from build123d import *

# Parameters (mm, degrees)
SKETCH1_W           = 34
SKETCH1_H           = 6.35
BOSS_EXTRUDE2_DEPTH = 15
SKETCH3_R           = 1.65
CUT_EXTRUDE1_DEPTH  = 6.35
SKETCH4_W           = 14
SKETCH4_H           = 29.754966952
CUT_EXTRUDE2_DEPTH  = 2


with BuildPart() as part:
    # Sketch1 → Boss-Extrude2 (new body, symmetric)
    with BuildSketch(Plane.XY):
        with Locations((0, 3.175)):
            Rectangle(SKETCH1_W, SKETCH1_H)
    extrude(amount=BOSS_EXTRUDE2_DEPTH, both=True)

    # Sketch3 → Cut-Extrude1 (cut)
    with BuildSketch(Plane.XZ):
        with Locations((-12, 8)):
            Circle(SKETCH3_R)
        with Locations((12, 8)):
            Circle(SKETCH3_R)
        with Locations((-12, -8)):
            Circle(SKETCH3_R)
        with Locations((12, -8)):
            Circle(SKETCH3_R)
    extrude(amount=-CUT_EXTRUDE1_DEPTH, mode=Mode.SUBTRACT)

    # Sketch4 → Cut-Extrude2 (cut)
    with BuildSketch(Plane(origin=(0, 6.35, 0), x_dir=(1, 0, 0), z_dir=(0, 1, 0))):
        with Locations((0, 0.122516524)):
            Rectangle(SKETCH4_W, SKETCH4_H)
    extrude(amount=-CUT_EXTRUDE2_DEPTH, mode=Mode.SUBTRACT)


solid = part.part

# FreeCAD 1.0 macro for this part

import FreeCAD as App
import Part
import Sketcher

V = App.Vector


def add_polygon(sketch, points):
    """Adds a closed chain of lines whose ends are joined by coincident constraints."""
    first, n = sketch.GeometryCount, len(points)
    for a, b in zip(points, points[1:] + points[:1]):
        sketch.addGeometry(Part.LineSegment(App.Vector(*a, 0), App.Vector(*b, 0)), False)
    for i in range(n):
        sketch.addConstraint(Sketcher.Constraint("Coincident", first + i, 2, first + (i + 1) % n, 1))

doc = App.newDocument("Part")
body = doc.addObject("PartDesign::Body", "Body")

# Sketch on XY plane
sketch1 = doc.addObject("Sketcher::SketchObject", "Sketch")
body.addObject(sketch1)
sketch1.AttachmentSupport = (doc.XY_Plane, [""])
sketch1.MapMode = "FlatFace"
add_polygon(sketch1, [(-17, 6), (-17, 0), (17, 0), (17, 6)])  # lines 0-3
sketch1.addConstraint([
    Sketcher.Constraint("Vertical", 0),
    Sketcher.Constraint("Horizontal", 1),
    Sketcher.Constraint("Vertical", 2),
    Sketcher.Constraint("Horizontal", 3),
    Sketcher.Constraint("Symmetric", 0, 2, 1, 2, -1, 1),
    Sketcher.Constraint("DistanceX", 1, 1, 1, 2, 34.0),
    Sketcher.Constraint("DistanceY", 0, 2, 0, 1, 6.35),
])
pad1 = doc.addObject("PartDesign::Pad", "Pad")
body.addObject(pad1)
pad1.Profile = sketch1
pad1.Length = 30
pad1.Midplane = True

# Sketch on XZ plane
sketch2 = doc.addObject("Sketcher::SketchObject", "Sketch001")
body.addObject(sketch2)
sketch2.AttachmentSupport = (doc.XZ_Plane, [""])
sketch2.MapMode = "FlatFace"
sketch2.addGeometry([
    Part.Circle(V(-12, 8, 0), V(0, 0, 1), 1.6),
    Part.Circle(V(12, 8, 0), V(0, 0, 1), 1.6),
    Part.Circle(V(-12, -8, 0), V(0, 0, 1), 1.6),
    Part.Circle(V(12, -8, 0), V(0, 0, 1), 1.6),
], False)
sketch2.addConstraint([
    Sketcher.Constraint("Equal", 0, 1),
    Sketcher.Constraint("Equal", 1, 2),
    Sketcher.Constraint("Equal", 2, 3),
    Sketcher.Constraint("Symmetric", 1, 3, 2, 3, -1, 1),
    Sketcher.Constraint("Symmetric", 0, 3, 3, 3, -1, 1),
    Sketcher.Constraint("Symmetric", 0, 3, 1, 3, -2),
    Sketcher.Constraint("Diameter", 0, 3.3),
    Sketcher.Constraint("DistanceX", 0, 3, -1, 1, 12.0),
    Sketcher.Constraint("DistanceY", -1, 1, 0, 3, 8.0),
])
pocket1 = doc.addObject("PartDesign::Pocket", "Pocket")
body.addObject(pocket1)
pocket1.Profile = sketch2
pocket1.Length = 6.35

# Sketch on XZ plane
sketch3 = doc.addObject("Sketcher::SketchObject", "Sketch002")
body.addObject(sketch3)
sketch3.AttachmentSupport = (doc.XZ_Plane, [""])
sketch3.MapMode = "FlatFace"
sketch3.AttachmentOffset = App.Placement(V(0, 0, -6.35), App.Rotation())
add_polygon(sketch3, [(-7, -15), (-7, 15), (7, 15), (7, -15)])  # lines 0-3
sketch3.addConstraint([
    Sketcher.Constraint("Vertical", 0),
    Sketcher.Constraint("Horizontal", 1),
    Sketcher.Constraint("Vertical", 2),
    Sketcher.Constraint("Horizontal", 3),
    Sketcher.Constraint("DistanceX", 1, 1, 1, 2, 14.0),
    Sketcher.Constraint("DistanceX", 0, 2, -1, 1, 7.0),
    Sketcher.Constraint("DistanceY", 2, 2, -1, 1, 15.0),
    Sketcher.Constraint("DistanceY", 0, 1, 0, 2, 29.754967),
])
pocket2 = doc.addObject("PartDesign::Pocket", "Pocket001")
body.addObject(pocket2)
pocket2.Profile = sketch3
pocket2.Length = 2
pocket2.Reversed = True

doc.recompute()
